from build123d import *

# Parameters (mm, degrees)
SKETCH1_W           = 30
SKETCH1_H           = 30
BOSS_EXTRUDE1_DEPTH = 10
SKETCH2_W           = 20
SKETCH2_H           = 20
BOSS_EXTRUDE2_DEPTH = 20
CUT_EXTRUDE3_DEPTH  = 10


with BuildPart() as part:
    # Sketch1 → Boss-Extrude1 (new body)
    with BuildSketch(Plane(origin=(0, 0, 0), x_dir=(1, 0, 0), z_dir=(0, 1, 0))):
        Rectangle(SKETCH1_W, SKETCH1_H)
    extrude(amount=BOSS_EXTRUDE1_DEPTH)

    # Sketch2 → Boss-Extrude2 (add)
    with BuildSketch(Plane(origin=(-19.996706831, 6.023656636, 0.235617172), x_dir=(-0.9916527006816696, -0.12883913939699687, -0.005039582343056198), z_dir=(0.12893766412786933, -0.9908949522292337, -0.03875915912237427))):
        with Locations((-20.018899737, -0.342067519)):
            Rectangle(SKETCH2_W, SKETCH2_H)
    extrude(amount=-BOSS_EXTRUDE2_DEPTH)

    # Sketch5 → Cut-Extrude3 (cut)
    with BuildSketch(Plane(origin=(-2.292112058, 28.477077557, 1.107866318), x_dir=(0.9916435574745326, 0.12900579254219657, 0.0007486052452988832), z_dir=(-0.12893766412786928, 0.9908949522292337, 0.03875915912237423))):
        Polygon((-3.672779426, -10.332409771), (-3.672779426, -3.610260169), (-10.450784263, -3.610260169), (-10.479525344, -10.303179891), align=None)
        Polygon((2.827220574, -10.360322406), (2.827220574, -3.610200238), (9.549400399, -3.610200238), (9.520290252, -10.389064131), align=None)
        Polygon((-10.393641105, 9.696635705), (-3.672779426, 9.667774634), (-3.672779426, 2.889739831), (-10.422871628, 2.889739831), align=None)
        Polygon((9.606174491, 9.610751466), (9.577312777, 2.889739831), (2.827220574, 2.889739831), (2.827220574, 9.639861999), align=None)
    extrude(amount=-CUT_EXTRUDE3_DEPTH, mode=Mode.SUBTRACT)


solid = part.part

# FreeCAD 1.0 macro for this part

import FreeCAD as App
import Part
import Sketcher

V = App.Vector


def add_polygon(sketch, points):
    """Adds a closed chain of lines whose ends are joined by coincident constraints."""
    first, n = sketch.GeometryCount, len(points)
    for a, b in zip(points, points[1:] + points[:1]):
        sketch.addGeometry(Part.LineSegment(App.Vector(*a, 0), App.Vector(*b, 0)), False)
    for i in range(n):
        sketch.addConstraint(Sketcher.Constraint("Coincident", first + i, 2, first + (i + 1) % n, 1))

doc = App.newDocument("Part")
body = doc.addObject("PartDesign::Body", "Body")

# Sketch on XZ plane
sketch1 = doc.addObject("Sketcher::SketchObject", "Sketch")
body.addObject(sketch1)
sketch1.AttachmentSupport = (doc.XZ_Plane, [""])
sketch1.MapMode = "FlatFace"
add_polygon(sketch1, [(-15, -15), (-15, 15), (15, 15), (15, -15)])  # lines 0-3
sketch1.addConstraint([
    Sketcher.Constraint("Vertical", 0),
    Sketcher.Constraint("Horizontal", 1),
    Sketcher.Constraint("Vertical", 2),
    Sketcher.Constraint("Horizontal", 3),
    Sketcher.Constraint("Symmetric", 0, 2, 2, 2, -1, 1),
    Sketcher.Constraint("Equal", 3, 0),
    Sketcher.Constraint("DistanceX", 1, 1, 1, 2, 30.0),
])
pad1 = doc.addObject("PartDesign::Pad", "Pad")
body.addObject(pad1)
pad1.Profile = sketch1
pad1.Length = 10
pad1.Reversed = True

# Sketch on an angled plane
sketch2 = doc.addObject("Sketcher::SketchObject", "Sketch001")
body.addObject(sketch2)
sketch2.Placement = App.Placement(V(-19.996707, 6.023657, 0.235617), App.Rotation(V(-0.991652701, -0.128839139, -0.005039582), V(0, 0.039085417, -0.999235873), V(0.128937664, -0.990894952, -0.038759159), "ZXY"))
add_polygon(sketch2, [(-30, 10), (-30, -10), (-10, -10), (-10, 10)])  # lines 0-3
sketch2.addConstraint([
    Sketcher.Constraint("Vertical", 0),
    Sketcher.Constraint("Horizontal", 1),
    Sketcher.Constraint("Vertical", 2),
    Sketcher.Constraint("Horizontal", 3),
    Sketcher.Constraint("Equal", 3, 0),
    Sketcher.Constraint("DistanceX", 1, 1, 1, 2, 20.0),
    Sketcher.Constraint("DistanceX", 0, 2, -1, 1, 30.0189),
    Sketcher.Constraint("DistanceY", 0, 2, -1, 1, 10.342068),
])
pad2 = doc.addObject("PartDesign::Pad", "Pad001")
body.addObject(pad2)
pad2.Profile = sketch2
pad2.Length = 20
pad2.Reversed = True

# Sketch on an angled plane
sketch3 = doc.addObject("Sketcher::SketchObject", "Sketch002")
body.addObject(sketch3)
sketch3.Placement = App.Placement(V(-2.292112, 28.477078, 1.107866), App.Rotation(V(0.991643557, 0.129005793, 0.000748605), V(-0.004258367, 0.038531794, -0.9992483), V(-0.128937664, 0.990894952, 0.038759159), "ZXY"))
add_polygon(sketch3, [(-4, -10), (-4, -4), (-10, -4), (-10, -10)])  # lines 0-3
add_polygon(sketch3, [(3, -4), (3, -10), (10, -10), (10, -4)])  # lines 4-7
add_polygon(sketch3, [(-4, 10), (-10, 10), (-10, 3), (-4, 3)])  # lines 8-11
add_polygon(sketch3, [(10, 3), (10, 10), (3, 10), (3, 3)])  # lines 12-15
sketch3.addConstraint([
    Sketcher.Constraint("Vertical", 0),
    Sketcher.Constraint("Horizontal", 1),
    Sketcher.Constraint("Vertical", 4),
    Sketcher.Constraint("Horizontal", 7),
    Sketcher.Constraint("Horizontal", 10),
    Sketcher.Constraint("Vertical", 11),
    Sketcher.Constraint("Vertical", 14),
    Sketcher.Constraint("Horizontal", 15),
    Sketcher.Constraint("Perpendicular", 2, 3),
    Sketcher.Constraint("Parallel", 3, 5),
    Sketcher.Constraint("Perpendicular", 5, 6),
    Sketcher.Constraint("Perpendicular", 6, 8),
    Sketcher.Constraint("Perpendicular", 8, 9),
    Sketcher.Constraint("Parallel", 9, 12),
    Sketcher.Constraint("Perpendicular", 12, 13),
    Sketcher.Constraint("Horizontal", 10, 2, 14, 2),
    Sketcher.Constraint("Vertical", 3, 2, 10, 2),
    Sketcher.Constraint("Vertical", 7, 2, 13, 2),
    Sketcher.Constraint("Equal", 10, 15),
    Sketcher.Constraint("Equal", 4, 14),
    Sketcher.Constraint("DistanceX", 3, 2, 4, 2, 6.5),
    Sketcher.Constraint("DistanceY", 1, 2, 9, 2, 6.5),
    Sketcher.Constraint("DistanceX", 7, 2, 7, 1, 6.72218),
    Sketcher.Constraint("DistanceY", 0, 1, 0, 2, 6.72215),
    Sketcher.Constraint("DistanceX", -1, 1, 6, 2, 9.5494),
    Sketcher.Constraint("DistanceY", 6, 2, -1, 1, 3.6102),
    Sketcher.Constraint("Distance", 2, 6.692981),
    Sketcher.Constraint("Distance", 3, 6.806809),
    Sketcher.Constraint("Distance", 9, 6.806959),
    Sketcher.Constraint("DistanceX", 10, 1, 10, 2, 6.750092),
    Sketcher.Constraint("DistanceY", 4, 2, 4, 1, 6.750122),
    Sketcher.Constraint("DistanceY", 0, 2, -1, 1, 3.61026),
])
pocket1 = doc.addObject("PartDesign::Pocket", "Pocket")
body.addObject(pocket1)
pocket1.Profile = sketch3
pocket1.Length = 10

doc.recompute()
